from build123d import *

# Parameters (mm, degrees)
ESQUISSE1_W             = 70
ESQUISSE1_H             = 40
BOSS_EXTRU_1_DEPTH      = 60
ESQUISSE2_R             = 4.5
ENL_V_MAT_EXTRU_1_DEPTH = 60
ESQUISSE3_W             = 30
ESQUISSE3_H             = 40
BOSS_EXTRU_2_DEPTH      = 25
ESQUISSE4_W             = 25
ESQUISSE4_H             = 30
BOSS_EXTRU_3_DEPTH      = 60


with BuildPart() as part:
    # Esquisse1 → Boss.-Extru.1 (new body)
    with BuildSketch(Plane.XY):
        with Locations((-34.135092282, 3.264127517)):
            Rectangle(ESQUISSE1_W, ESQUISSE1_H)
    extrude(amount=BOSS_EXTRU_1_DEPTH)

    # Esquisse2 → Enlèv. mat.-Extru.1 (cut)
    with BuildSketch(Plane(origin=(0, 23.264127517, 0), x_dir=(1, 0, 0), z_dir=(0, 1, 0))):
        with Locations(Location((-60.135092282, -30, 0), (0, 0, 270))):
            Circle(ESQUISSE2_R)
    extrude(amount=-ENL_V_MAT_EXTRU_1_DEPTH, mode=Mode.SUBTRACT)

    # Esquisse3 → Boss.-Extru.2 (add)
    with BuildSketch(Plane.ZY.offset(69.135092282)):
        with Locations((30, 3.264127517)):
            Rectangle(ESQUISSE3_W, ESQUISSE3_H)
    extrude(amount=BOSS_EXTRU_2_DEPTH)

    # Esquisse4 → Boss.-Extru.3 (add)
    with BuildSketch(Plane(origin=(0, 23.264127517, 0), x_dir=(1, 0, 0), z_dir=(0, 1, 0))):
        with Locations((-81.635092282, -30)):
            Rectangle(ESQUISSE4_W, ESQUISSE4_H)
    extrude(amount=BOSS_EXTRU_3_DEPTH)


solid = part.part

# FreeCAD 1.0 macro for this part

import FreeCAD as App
import Part
import Sketcher

V = App.Vector
Q = App.Units.Quantity

doc = App.newDocument("Part")
params = doc.addObject("Spreadsheet::Sheet", "Params")
for row, (alias, value) in enumerate([
    ("sketch1_width", "70 mm"),
    ("sketch1_height", "40 mm"),
    ("pad1_length", "60 mm"),
    ("sketch2_diameter", "9 mm"),
    ("pocket1_length", "60 mm"),
    ("sketch3_width", "40 mm"),
    ("sketch3_height", "30 mm"),
    ("pad2_length", "25 mm"),
    ("sketch4_width", "25 mm"),
    ("sketch4_height", "30 mm"),
    ("pad3_length", "60 mm"),
], start=1):
    params.set(f"A{row}", alias)
    params.set(f"B{row}", "=" + value)
    params.setAlias(f"B{row}", alias)

body = doc.addObject("PartDesign::Body", "Body")

sketch1 = body.newObject("Sketcher::SketchObject", "Sketch")
sketch1.AttachmentSupport = (doc.getObject("XY_Plane"), [""])
sketch1.MapMode = "FlatFace"
sketch1.addGeometry([
    Part.LineSegment(V(-69.135092, 23.264128, 0), V(-69.135092, -16.735872, 0)),
    Part.LineSegment(V(-69.135092, -16.735872, 0), V(0.864908, -16.735872, 0)),
    Part.LineSegment(V(0.864908, -16.735872, 0), V(0.864908, 23.264128, 0)),
    Part.LineSegment(V(0.864908, 23.264128, 0), V(-69.135092, 23.264128, 0)),
], False)
sketch1.addConstraint([
    Sketcher.Constraint("Coincident", 0, 2, 1, 1),
    Sketcher.Constraint("Coincident", 1, 2, 2, 1),
    Sketcher.Constraint("Coincident", 2, 2, 3, 1),
    Sketcher.Constraint("Coincident", 3, 2, 0, 1),
    Sketcher.Constraint("Vertical", 0),
    Sketcher.Constraint("Horizontal", 1),
    Sketcher.Constraint("Vertical", 2),
    Sketcher.Constraint("Horizontal", 3),
    Sketcher.Constraint("DistanceX", 1, 1, 1, 2, Q("70 mm")),
    Sketcher.Constraint("DistanceY", 0, 2, 0, 1, Q("40 mm")),
    Sketcher.Constraint("DistanceX", 0, 2, -1, 1, Q("69.135092 mm")),
    Sketcher.Constraint("DistanceY", 0, 2, -1, 1, Q("16.735872 mm")),
])
sketch1.setExpression("Constraints[8]", "Params.sketch1_width")
sketch1.setExpression("Constraints[9]", "Params.sketch1_height")
pad1 = body.newObject("PartDesign::Pad", "Pad")
pad1.Profile = sketch1
pad1.setExpression("Length", "Params.pad1_length")

sketch2 = body.newObject("Sketcher::SketchObject", "Sketch001")
sketch2.AttachmentSupport = (doc.getObject("XZ_Plane"), [""])
sketch2.MapMode = "FlatFace"
sketch2.AttachmentOffset = App.Placement(V(0, 0, -23.264128), App.Rotation())
sketch2.addGeometry(Part.Circle(V(-60.135092, 30, 0), V(0, 0, 1), 4.5), False)
sketch2.addConstraint([
    Sketcher.Constraint("Diameter", 0, Q("9 mm")),
    Sketcher.Constraint("DistanceY", -1, 1, 0, 3, Q("30 mm")),
    Sketcher.Constraint("DistanceX", 0, 3, -1, 1, Q("60.135092 mm")),
])
sketch2.setExpression("Constraints[0]", "Params.sketch2_diameter")
pocket1 = body.newObject("PartDesign::Pocket", "Pocket")
pocket1.Profile = sketch2
pocket1.setExpression("Length", "Params.pocket1_length")
pocket1.Reversed = True

sketch3 = body.newObject("Sketcher::SketchObject", "Sketch002")
sketch3.AttachmentSupport = (doc.getObject("YZ_Plane"), [""])
sketch3.MapMode = "FlatFace"
sketch3.AttachmentOffset = App.Placement(V(0, 0, -69.135092), App.Rotation())
sketch3.addGeometry([
    Part.LineSegment(V(23.264128, 15, 0), V(-16.735872, 15, 0)),
    Part.LineSegment(V(-16.735872, 15, 0), V(-16.735872, 45, 0)),
    Part.LineSegment(V(-16.735872, 45, 0), V(23.264128, 45, 0)),
    Part.LineSegment(V(23.264128, 45, 0), V(23.264128, 15, 0)),
], False)
sketch3.addConstraint([
    Sketcher.Constraint("Coincident", 0, 2, 1, 1),
    Sketcher.Constraint("Coincident", 1, 2, 2, 1),
    Sketcher.Constraint("Coincident", 2, 2, 3, 1),
    Sketcher.Constraint("Coincident", 3, 2, 0, 1),
    Sketcher.Constraint("Horizontal", 0),
    Sketcher.Constraint("Vertical", 1),
    Sketcher.Constraint("Horizontal", 2),
    Sketcher.Constraint("Vertical", 3),
    Sketcher.Constraint("DistanceX", 0, 2, 0, 1, Q("40 mm")),
    Sketcher.Constraint("DistanceY", 1, 1, 1, 2, Q("30 mm")),
    Sketcher.Constraint("DistanceY", -1, 1, 0, 2, Q("15 mm")),
    Sketcher.Constraint("DistanceX", 0, 2, -1, 1, Q("16.735872 mm")),
])
sketch3.setExpression("Constraints[8]", "Params.sketch3_width")
sketch3.setExpression("Constraints[9]", "Params.sketch3_height")
pad2 = body.newObject("PartDesign::Pad", "Pad001")
pad2.Profile = sketch3
pad2.setExpression("Length", "Params.pad2_length")
pad2.Reversed = True

sketch4 = body.newObject("Sketcher::SketchObject", "Sketch003")
sketch4.AttachmentSupport = (doc.getObject("XZ_Plane"), [""])
sketch4.MapMode = "FlatFace"
sketch4.AttachmentOffset = App.Placement(V(0, 0, -23.264128), App.Rotation())
sketch4.addGeometry([
    Part.LineSegment(V(-94.135092, 15, 0), V(-94.135092, 45, 0)),
    Part.LineSegment(V(-94.135092, 45, 0), V(-69.135092, 45, 0)),
    Part.LineSegment(V(-69.135092, 45, 0), V(-69.135092, 15, 0)),
    Part.LineSegment(V(-69.135092, 15, 0), V(-94.135092, 15, 0)),
], False)
sketch4.addConstraint([
    Sketcher.Constraint("Coincident", 0, 2, 1, 1),
    Sketcher.Constraint("Coincident", 1, 2, 2, 1),
    Sketcher.Constraint("Coincident", 2, 2, 3, 1),
    Sketcher.Constraint("Coincident", 3, 2, 0, 1),
    Sketcher.Constraint("Vertical", 0),
    Sketcher.Constraint("Horizontal", 1),
    Sketcher.Constraint("Vertical", 2),
    Sketcher.Constraint("Horizontal", 3),
    Sketcher.Constraint("DistanceX", 1, 1, 1, 2, Q("25 mm")),
    Sketcher.Constraint("DistanceY", 0, 1, 0, 2, Q("30 mm")),
    Sketcher.Constraint("DistanceY", -1, 1, 0, 2, Q("45 mm")),
    Sketcher.Constraint("DistanceX", 0, 2, -1, 1, Q("94.135092 mm")),
])
sketch4.setExpression("Constraints[8]", "Params.sketch4_width")
sketch4.setExpression("Constraints[9]", "Params.sketch4_height")
pad3 = body.newObject("PartDesign::Pad", "Pad002")
pad3.Profile = sketch4
pad3.setExpression("Length", "Params.pad3_length")
pad3.Reversed = True

doc.recompute()
